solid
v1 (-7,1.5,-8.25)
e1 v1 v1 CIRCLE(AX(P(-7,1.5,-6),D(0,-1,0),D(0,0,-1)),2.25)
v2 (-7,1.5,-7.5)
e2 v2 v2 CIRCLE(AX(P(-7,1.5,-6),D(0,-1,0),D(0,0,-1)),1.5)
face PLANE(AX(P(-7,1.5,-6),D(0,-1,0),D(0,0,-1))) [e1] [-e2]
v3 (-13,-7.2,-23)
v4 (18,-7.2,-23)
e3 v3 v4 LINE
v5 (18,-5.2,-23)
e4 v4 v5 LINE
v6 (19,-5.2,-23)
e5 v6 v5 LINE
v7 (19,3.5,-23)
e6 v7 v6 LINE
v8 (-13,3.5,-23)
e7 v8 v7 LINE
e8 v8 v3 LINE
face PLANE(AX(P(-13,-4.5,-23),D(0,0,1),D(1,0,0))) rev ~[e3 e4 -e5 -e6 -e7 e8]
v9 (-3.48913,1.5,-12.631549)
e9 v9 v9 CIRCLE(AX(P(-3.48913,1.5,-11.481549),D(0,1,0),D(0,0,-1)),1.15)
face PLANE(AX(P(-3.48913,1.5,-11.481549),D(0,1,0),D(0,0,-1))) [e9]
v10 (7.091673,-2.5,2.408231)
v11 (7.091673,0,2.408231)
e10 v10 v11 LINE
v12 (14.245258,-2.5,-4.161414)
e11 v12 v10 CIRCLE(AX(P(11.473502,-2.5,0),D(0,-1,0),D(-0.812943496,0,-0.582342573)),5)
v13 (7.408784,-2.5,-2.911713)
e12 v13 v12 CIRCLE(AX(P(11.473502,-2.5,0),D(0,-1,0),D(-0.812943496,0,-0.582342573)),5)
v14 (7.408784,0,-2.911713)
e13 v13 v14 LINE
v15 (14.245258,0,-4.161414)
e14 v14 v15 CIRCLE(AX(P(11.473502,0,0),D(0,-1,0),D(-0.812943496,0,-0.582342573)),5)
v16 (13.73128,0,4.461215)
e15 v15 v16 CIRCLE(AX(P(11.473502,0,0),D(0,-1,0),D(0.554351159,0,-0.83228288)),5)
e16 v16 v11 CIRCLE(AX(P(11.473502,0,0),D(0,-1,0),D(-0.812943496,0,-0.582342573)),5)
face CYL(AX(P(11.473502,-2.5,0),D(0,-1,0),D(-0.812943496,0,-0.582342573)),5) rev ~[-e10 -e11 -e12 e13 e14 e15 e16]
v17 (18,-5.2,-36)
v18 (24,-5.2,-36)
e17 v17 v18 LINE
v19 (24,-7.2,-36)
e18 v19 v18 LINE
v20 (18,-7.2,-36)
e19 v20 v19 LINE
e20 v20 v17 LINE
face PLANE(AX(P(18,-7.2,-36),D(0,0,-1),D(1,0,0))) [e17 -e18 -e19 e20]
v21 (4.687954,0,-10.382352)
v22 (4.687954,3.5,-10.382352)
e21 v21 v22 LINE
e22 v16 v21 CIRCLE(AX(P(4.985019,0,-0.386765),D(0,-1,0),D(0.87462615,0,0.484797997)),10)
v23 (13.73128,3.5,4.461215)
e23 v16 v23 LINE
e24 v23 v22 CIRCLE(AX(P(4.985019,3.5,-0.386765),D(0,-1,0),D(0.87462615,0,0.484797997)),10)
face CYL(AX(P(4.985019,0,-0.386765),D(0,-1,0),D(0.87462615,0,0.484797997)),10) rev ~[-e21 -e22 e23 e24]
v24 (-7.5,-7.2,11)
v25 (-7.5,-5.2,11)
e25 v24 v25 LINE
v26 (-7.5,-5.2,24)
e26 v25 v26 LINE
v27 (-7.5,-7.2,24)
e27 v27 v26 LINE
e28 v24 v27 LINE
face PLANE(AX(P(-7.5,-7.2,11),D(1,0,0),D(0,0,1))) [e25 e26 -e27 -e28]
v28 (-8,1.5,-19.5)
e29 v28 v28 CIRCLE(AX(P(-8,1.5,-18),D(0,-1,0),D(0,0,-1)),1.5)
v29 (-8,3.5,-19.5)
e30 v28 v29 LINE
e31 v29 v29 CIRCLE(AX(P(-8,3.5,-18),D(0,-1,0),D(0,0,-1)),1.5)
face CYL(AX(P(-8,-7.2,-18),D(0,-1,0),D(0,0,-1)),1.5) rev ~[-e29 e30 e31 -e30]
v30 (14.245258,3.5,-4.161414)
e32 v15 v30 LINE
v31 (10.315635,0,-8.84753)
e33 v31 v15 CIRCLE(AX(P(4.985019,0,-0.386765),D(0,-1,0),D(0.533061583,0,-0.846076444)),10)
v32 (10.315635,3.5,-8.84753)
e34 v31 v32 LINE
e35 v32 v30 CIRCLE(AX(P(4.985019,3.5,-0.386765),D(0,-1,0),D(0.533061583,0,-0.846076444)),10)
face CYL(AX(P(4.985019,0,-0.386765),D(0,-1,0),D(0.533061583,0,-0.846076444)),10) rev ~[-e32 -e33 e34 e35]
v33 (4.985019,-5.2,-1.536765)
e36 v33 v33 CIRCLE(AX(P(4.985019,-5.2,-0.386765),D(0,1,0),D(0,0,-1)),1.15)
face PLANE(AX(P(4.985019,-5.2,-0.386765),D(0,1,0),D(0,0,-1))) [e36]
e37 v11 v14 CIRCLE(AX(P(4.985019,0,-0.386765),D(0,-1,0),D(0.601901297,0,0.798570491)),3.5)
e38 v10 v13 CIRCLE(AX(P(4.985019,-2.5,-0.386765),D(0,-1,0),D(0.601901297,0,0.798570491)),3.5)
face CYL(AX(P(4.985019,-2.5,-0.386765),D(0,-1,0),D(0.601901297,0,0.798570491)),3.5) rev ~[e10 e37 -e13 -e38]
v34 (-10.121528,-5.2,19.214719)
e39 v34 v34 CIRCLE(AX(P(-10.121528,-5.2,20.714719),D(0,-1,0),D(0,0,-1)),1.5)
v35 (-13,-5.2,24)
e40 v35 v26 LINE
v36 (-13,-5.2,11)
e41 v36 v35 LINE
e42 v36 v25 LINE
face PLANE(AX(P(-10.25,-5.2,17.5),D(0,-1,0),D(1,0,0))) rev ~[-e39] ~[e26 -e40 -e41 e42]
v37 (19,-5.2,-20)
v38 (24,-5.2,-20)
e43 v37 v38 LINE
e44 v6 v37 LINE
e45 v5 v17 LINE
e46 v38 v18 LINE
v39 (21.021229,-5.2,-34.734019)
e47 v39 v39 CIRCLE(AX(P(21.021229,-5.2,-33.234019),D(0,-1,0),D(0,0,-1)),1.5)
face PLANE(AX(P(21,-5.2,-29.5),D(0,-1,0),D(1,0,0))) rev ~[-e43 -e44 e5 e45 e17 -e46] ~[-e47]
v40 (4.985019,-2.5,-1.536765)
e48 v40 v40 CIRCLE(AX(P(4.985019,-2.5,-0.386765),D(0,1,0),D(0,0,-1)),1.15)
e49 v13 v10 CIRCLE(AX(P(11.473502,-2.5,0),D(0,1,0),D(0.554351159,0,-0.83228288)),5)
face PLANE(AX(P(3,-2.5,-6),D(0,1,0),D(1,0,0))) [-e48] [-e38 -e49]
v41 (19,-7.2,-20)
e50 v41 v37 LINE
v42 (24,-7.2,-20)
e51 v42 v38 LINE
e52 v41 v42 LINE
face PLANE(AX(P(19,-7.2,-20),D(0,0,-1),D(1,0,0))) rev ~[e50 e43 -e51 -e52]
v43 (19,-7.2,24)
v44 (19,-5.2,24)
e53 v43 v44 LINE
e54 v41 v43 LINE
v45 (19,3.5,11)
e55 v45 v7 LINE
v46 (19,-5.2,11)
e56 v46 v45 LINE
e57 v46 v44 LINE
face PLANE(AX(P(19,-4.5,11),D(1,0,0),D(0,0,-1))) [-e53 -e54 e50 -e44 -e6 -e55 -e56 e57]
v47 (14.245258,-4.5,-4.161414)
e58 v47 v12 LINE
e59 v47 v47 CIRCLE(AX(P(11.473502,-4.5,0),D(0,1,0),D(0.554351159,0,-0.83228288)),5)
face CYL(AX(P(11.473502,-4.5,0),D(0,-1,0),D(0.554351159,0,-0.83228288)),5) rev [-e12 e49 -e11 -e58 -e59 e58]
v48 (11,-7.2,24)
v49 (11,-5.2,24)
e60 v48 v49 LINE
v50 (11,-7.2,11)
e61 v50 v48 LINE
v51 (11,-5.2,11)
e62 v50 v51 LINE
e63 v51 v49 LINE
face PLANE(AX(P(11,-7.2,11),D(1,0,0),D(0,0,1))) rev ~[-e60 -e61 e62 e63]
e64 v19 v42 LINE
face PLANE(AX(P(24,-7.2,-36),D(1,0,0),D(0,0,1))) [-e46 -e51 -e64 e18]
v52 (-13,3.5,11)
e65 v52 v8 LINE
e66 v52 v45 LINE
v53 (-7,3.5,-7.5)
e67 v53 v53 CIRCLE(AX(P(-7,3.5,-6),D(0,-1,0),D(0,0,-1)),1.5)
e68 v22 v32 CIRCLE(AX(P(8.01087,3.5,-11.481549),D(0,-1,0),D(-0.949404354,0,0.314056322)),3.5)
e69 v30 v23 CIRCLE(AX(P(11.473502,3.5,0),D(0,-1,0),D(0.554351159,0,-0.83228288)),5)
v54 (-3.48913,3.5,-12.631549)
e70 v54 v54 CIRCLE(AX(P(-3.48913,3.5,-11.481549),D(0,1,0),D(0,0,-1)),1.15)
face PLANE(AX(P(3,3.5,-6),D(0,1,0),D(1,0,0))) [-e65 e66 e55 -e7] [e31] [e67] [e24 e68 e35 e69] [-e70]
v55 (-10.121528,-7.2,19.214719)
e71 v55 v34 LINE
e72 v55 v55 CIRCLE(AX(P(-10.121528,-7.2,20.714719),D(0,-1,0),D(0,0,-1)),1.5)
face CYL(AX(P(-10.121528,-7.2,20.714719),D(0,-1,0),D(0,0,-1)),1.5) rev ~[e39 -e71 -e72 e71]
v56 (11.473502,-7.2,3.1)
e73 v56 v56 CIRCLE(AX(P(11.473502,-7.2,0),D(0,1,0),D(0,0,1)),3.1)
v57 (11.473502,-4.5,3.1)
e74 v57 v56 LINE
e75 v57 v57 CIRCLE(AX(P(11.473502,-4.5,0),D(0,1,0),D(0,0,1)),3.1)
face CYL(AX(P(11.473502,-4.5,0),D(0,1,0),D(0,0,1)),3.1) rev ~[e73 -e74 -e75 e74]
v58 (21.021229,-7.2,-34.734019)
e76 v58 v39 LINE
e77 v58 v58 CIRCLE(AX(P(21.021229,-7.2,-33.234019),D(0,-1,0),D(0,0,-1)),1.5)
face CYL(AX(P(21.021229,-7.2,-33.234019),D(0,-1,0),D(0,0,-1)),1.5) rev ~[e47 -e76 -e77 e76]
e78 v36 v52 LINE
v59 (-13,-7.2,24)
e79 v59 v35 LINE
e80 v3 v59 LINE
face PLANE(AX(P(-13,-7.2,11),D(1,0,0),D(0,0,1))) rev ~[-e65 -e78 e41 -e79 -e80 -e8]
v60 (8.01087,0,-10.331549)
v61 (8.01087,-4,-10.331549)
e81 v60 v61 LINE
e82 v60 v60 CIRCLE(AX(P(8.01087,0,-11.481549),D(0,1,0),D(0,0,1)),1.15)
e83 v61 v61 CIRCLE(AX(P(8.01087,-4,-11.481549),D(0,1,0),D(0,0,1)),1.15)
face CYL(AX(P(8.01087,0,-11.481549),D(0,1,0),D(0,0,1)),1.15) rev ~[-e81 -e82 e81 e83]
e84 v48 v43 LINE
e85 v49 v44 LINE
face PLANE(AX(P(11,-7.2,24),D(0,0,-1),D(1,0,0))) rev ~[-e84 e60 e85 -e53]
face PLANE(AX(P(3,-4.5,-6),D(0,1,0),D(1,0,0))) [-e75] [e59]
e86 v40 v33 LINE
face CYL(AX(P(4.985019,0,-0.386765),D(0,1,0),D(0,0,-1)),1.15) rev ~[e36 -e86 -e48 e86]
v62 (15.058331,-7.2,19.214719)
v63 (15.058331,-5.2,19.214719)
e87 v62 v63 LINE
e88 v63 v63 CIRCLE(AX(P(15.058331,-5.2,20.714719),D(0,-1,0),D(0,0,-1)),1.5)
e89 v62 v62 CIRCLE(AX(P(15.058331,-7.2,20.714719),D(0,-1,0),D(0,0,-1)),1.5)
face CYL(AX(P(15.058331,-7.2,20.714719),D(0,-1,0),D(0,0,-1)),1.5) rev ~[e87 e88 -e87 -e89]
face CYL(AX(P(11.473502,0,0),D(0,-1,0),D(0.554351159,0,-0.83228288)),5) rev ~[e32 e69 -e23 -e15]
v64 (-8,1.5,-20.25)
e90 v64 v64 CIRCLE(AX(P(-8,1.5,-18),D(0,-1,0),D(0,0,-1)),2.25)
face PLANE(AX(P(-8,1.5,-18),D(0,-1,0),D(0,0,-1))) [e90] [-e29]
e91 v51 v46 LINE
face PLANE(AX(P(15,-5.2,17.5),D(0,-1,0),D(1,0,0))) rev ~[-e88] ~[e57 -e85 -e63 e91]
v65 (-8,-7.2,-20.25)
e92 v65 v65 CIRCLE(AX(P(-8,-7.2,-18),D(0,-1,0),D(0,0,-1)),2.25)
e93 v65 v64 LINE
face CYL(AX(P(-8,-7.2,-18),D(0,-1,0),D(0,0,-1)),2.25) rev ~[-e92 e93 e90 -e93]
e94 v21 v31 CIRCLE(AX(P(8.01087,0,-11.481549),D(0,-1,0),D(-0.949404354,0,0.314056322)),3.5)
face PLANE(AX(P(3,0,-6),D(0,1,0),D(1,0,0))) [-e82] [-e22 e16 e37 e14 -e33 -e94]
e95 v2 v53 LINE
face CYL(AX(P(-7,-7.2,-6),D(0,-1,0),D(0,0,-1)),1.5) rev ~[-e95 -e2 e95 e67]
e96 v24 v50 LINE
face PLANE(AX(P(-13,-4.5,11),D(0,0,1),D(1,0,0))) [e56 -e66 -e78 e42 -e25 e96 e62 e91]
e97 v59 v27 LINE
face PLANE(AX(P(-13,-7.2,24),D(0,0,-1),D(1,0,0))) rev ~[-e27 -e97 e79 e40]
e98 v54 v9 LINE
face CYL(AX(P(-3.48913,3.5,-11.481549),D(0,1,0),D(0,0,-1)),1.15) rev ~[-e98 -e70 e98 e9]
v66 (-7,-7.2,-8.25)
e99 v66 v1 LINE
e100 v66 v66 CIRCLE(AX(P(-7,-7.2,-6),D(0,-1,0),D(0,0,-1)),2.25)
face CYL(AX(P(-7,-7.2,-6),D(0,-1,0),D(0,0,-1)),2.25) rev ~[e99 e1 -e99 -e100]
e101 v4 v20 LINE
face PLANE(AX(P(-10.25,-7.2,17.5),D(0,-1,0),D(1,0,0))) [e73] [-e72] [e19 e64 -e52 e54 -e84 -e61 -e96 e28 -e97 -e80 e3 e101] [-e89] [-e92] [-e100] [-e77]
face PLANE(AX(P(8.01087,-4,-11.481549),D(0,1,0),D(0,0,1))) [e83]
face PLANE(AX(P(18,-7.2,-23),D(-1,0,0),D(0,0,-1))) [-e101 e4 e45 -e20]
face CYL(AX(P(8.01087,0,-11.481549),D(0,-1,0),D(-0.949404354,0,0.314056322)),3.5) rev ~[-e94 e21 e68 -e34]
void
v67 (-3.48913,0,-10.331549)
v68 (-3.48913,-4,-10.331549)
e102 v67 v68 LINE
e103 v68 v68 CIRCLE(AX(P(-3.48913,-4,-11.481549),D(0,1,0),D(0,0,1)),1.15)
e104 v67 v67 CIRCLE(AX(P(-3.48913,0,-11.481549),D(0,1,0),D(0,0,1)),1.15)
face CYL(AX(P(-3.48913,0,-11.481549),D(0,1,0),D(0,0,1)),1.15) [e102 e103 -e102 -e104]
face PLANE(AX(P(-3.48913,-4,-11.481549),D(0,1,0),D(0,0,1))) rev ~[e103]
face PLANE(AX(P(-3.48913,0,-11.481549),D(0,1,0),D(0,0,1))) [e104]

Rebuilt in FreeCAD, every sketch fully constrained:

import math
import FreeCAD as App
import Part
import Sketcher
from FreeCAD import Vector


def add_polygon(sketch, points):
    """Adds a closed chain of lines whose ends are joined by coincident constraints."""
    first, n = sketch.GeometryCount, len(points)
    for a, b in zip(points, points[1:] + points[:1]):
        sketch.addGeometry(Part.LineSegment(App.Vector(*a, 0), App.Vector(*b, 0)), False)
    for i in range(n):
        sketch.addConstraint(Sketcher.Constraint("Coincident", first + i, 2, first + (i + 1) % n, 1))

doc = App.newDocument("Part")
body = doc.addObject("PartDesign::Body", "Body")

# Sketch on XZ plane
sketch1 = doc.addObject("Sketcher::SketchObject", "Sketch")
body.addObject(sketch1)
sketch1.AttachmentSupport = (doc.XZ_Plane, [""])
sketch1.MapMode = "FlatFace"
add_polygon(sketch1, [(-13, -23), (-13, 11), (19, 11), (19, -23)])  # lines 0-3
sketch1.addGeometry(Part.ArcOfCircle(Part.Circle(Vector(11.5, 0, 0), Vector(0, 0, 1), 5), math.radians(-56), math.radians(63)), False)  # 4
sketch1.addGeometry(Part.ArcOfCircle(Part.Circle(Vector(5, -0.4, 0), Vector(0, 0, 1), 10), math.radians(29), math.radians(268)), False)  # 5
sketch1.addGeometry(Part.ArcOfCircle(Part.Circle(Vector(8, -11.5, 0), Vector(0, 0, 1), 3.5), math.radians(162), math.radians(409)), False)  # 6
sketch1.addGeometry(Part.ArcOfCircle(Part.Circle(Vector(5, -0.4, 0), Vector(0, 0, 1), 10), math.radians(-58), math.radians(-22)), False)  # 7
sketch1.addConstraint([
    Sketcher.Constraint("Coincident", 4, 2, 5, 1),
    Sketcher.Constraint("Coincident", 5, 2, 6, 1),
    Sketcher.Constraint("Coincident", 6, 2, 7, 1),
    Sketcher.Constraint("Coincident", 7, 2, 4, 1),
    Sketcher.Constraint("Vertical", 0),
    Sketcher.Constraint("Horizontal", 1),
    Sketcher.Constraint("Vertical", 2),
    Sketcher.Constraint("Horizontal", 3),
    Sketcher.Constraint("Coincident", 7, 3, 5, 3),
    Sketcher.Constraint("Equal", 5, 7),
    Sketcher.Constraint("PointOnObject", 4, 3, -1),
    Sketcher.Constraint("Radius", 4, 5.0),
    Sketcher.Constraint("Radius", 5, 10.0),
    Sketcher.Constraint("Radius", 6, 3.5),
    Sketcher.Constraint("DistanceX", 1, 1, 1, 2, 32.0),
    Sketcher.Constraint("DistanceY", 0, 1, 0, 2, 34.0),
    Sketcher.Constraint("DistanceX", 0, 2, -1, 1, 13.0),
    Sketcher.Constraint("DistanceY", -1, 1, 0, 2, 11.0),
    Sketcher.Constraint("DistanceX", -1, 1, 4, 3, 11.473502),
    Sketcher.Constraint("DistanceX", -1, 1, 5, 3, 4.985019),
    Sketcher.Constraint("DistanceX", -1, 1, 6, 3, 8.01087),
    Sketcher.Constraint("DistanceY", 6, 3, -1, 1, 11.481549),
    Sketcher.Constraint("DistanceX", -1, 1, 4, 2, 13.73128),
])
pad1 = doc.addObject("PartDesign::Pad", "Pad")
body.addObject(pad1)
pad1.Profile = sketch1
pad1.Length = 3.5
pad1.Reversed = True

# Sketch on XZ plane
sketch2 = doc.addObject("Sketcher::SketchObject", "Sketch001")
body.addObject(sketch2)
sketch2.AttachmentSupport = (doc.XZ_Plane, [""])
sketch2.MapMode = "FlatFace"
sketch2.AttachmentOffset = App.Placement(Vector(0, 0, 2.5), App.Rotation())
add_polygon(sketch2, [(-13, -23), (-13, 11), (19, 11), (19, -23)])  # lines 0-3
sketch2.addGeometry(Part.ArcOfCircle(Part.Circle(Vector(5, -0.4, 0), Vector(0, 0, 1), 3.5), math.radians(53), math.radians(314)), False)  # 4
sketch2.addGeometry(Part.ArcOfCircle(Part.Circle(Vector(11.5, 0, 0), Vector(0, 0, 1), 5), math.radians(-144), math.radians(151)), False)  # 5
sketch2.addConstraint([
    Sketcher.Constraint("Coincident", 4, 1, 5, 2),
    Sketcher.Constraint("Coincident", 5, 1, 4, 2),
    Sketcher.Constraint("Vertical", 0),
    Sketcher.Constraint("Horizontal", 1),
    Sketcher.Constraint("Vertical", 2),
    Sketcher.Constraint("Horizontal", 3),
    Sketcher.Constraint("PointOnObject", 5, 3, -1),
    Sketcher.Constraint("Radius", 5, 5.0),
    Sketcher.Constraint("Radius", 4, 3.5),
    Sketcher.Constraint("DistanceX", 1, 1, 1, 2, 32.0),
    Sketcher.Constraint("DistanceY", 0, 1, 0, 2, 34.0),
    Sketcher.Constraint("DistanceX", 0, 2, -1, 1, 13.0),
    Sketcher.Constraint("DistanceY", -1, 1, 0, 2, 11.0),
    Sketcher.Constraint("DistanceX", -1, 1, 5, 3, 11.473502),
    Sketcher.Constraint("DistanceX", -1, 1, 4, 3, 4.985019),
    Sketcher.Constraint("DistanceY", -1, 1, 4, 1, 2.408231),
])
pad2 = doc.addObject("PartDesign::Pad", "Pad001")
body.addObject(pad2)
pad2.Profile = sketch2
pad2.Length = 2.5
pad2.Reversed = True

# Sketch on XZ plane
sketch3 = doc.addObject("Sketcher::SketchObject", "Sketch002")
body.addObject(sketch3)
sketch3.AttachmentSupport = (doc.XZ_Plane, [""])
sketch3.MapMode = "FlatFace"
sketch3.AttachmentOffset = App.Placement(Vector(0, 0, 4.5), App.Rotation())
add_polygon(sketch3, [(-13, -23), (-13, 11), (19, 11), (19, -23)])  # lines 0-3
sketch3.addGeometry(Part.Circle(Vector(11, 0, 0), Vector(0, 0, 1), 5), False)  # 4
sketch3.addConstraint([
    Sketcher.Constraint("Vertical", 0),
    Sketcher.Constraint("Horizontal", 1),
    Sketcher.Constraint("Vertical", 2),
    Sketcher.Constraint("Horizontal", 3),
    Sketcher.Constraint("PointOnObject", 4, 3, -1),
    Sketcher.Constraint("Diameter", 4, 10.0),
    Sketcher.Constraint("DistanceX", 1, 1, 1, 2, 32.0),
    Sketcher.Constraint("DistanceY", 0, 1, 0, 2, 34.0),
    Sketcher.Constraint("DistanceX", 0, 2, -1, 1, 13.0),
    Sketcher.Constraint("DistanceY", -1, 1, 0, 2, 11.0),
    Sketcher.Constraint("DistanceX", -1, 1, 4, 3, 11.473502),
])
pad3 = doc.addObject("PartDesign::Pad", "Pad002")
body.addObject(pad3)
pad3.Profile = sketch3
pad3.Length = 2
pad3.Reversed = True

# Sketch on XZ plane
sketch4 = doc.addObject("Sketcher::SketchObject", "Sketch003")
body.addObject(sketch4)
sketch4.AttachmentSupport = (doc.XZ_Plane, [""])
sketch4.MapMode = "FlatFace"
sketch4.AttachmentOffset = App.Placement(Vector(0, 0, 4.5), App.Rotation())
add_polygon(sketch4, [(-13, -23), (-13, 11), (19, 11), (19, -23)])  # lines 0-3
sketch4.addGeometry(Part.Circle(Vector(11.5, 0, 0), Vector(0, 0, 1), 3.1), False)  # 4
sketch4.addConstraint([
    Sketcher.Constraint("Vertical", 0),
    Sketcher.Constraint("Horizontal", 1),
    Sketcher.Constraint("Vertical", 2),
    Sketcher.Constraint("Horizontal", 3),
    Sketcher.Constraint("PointOnObject", 4, 3, -1),
    Sketcher.Constraint("Diameter", 4, 6.2),
    Sketcher.Constraint("DistanceX", 1, 1, 1, 2, 32.0),
    Sketcher.Constraint("DistanceY", 0, 1, 0, 2, 34.0),
    Sketcher.Constraint("DistanceX", 0, 2, -1, 1, 13.0),
    Sketcher.Constraint("DistanceY", -1, 1, 0, 2, 11.0),
    Sketcher.Constraint("DistanceX", -1, 1, 4, 3, 11.473502),
])
pad4 = doc.addObject("PartDesign::Pad", "Pad003")
body.addObject(pad4)
pad4.Profile = sketch4
pad4.Length = 2.7

# Sketch on XZ plane
sketch5 = doc.addObject("Sketcher::SketchObject", "Sketch004")
body.addObject(sketch5)
sketch5.AttachmentSupport = (doc.XZ_Plane, [""])
sketch5.MapMode = "FlatFace"
sketch5.AttachmentOffset = App.Placement(Vector(0, 0, 7.2), App.Rotation())
sketch5.addGeometry([
    Part.Circle(Vector(-8, -18, 0), Vector(0, 0, 1), 1.5),
    Part.Circle(Vector(-7, -6, 0), Vector(0, 0, 1), 1.5),
], False)
sketch5.addConstraint([
    Sketcher.Constraint("Equal", 0, 1),
    Sketcher.Constraint("Diameter", 0, 3.0),
    Sketcher.Constraint("DistanceX", 0, 3, -1, 1, 8.0),
    Sketcher.Constraint("DistanceY", 0, 3, -1, 1, 18.0),
    Sketcher.Constraint("DistanceX", 1, 3, -1, 1, 7.0),
    Sketcher.Constraint("DistanceY", 1, 3, -1, 1, 6.0),
])
pocket1 = doc.addObject("PartDesign::Pocket", "Pocket")
body.addObject(pocket1)
pocket1.Profile = sketch5
pocket1.Type = "ThroughAll"

# Sketch on XZ plane
sketch6 = doc.addObject("Sketcher::SketchObject", "Sketch005")
body.addObject(sketch6)
sketch6.AttachmentSupport = (doc.XZ_Plane, [""])
sketch6.MapMode = "FlatFace"
sketch6.AttachmentOffset = App.Placement(Vector(0, 0, 7.2), App.Rotation())
sketch6.addGeometry([
    Part.Circle(Vector(-8, -18, 0), Vector(0, 0, 1), 2.2),
    Part.Circle(Vector(-7, -6, 0), Vector(0, 0, 1), 2.2),
], False)
sketch6.addConstraint([
    Sketcher.Constraint("Equal", 0, 1),
    Sketcher.Constraint("Diameter", 0, 4.5),
    Sketcher.Constraint("DistanceX", 0, 3, -1, 1, 8.0),
    Sketcher.Constraint("DistanceY", 0, 3, -1, 1, 18.0),
    Sketcher.Constraint("DistanceX", 1, 3, -1, 1, 7.0),
    Sketcher.Constraint("DistanceY", 1, 3, -1, 1, 6.0),
])
pocket2 = doc.addObject("PartDesign::Pocket", "Pocket001")
body.addObject(pocket2)
pocket2.Profile = sketch6
pocket2.Length = 8.7

# Sketch on XZ plane
sketch7 = doc.addObject("Sketcher::SketchObject", "Sketch006")
body.addObject(sketch7)
sketch7.AttachmentSupport = (doc.XZ_Plane, [""])
sketch7.MapMode = "FlatFace"
sketch7.addGeometry([
    Part.Circle(Vector(-3.5, -11.5, 0), Vector(0, 0, 1), 1.1),
    Part.Circle(Vector(8, -11.5, 0), Vector(0, 0, 1), 1.1),
], False)
sketch7.addConstraint([
    Sketcher.Constraint("Equal", 0, 1),
    Sketcher.Constraint("Horizontal", 0, 3, 1, 3),
    Sketcher.Constraint("Diameter", 0, 2.3),
    Sketcher.Constraint("DistanceX", 0, 3, 1, 3, 11.5),
    Sketcher.Constraint("DistanceX", 0, 3, -1, 1, 3.48913),
    Sketcher.Constraint("DistanceY", 0, 3, -1, 1, 11.481549),
])
pocket3 = doc.addObject("PartDesign::Pocket", "Pocket002")
body.addObject(pocket3)
pocket3.Profile = sketch7
pocket3.Length = 4
pocket3.Reversed = True

# Sketch on XZ plane
sketch8 = doc.addObject("Sketcher::SketchObject", "Sketch007")
body.addObject(sketch8)
sketch8.AttachmentSupport = (doc.XZ_Plane, [""])
sketch8.MapMode = "FlatFace"
sketch8.AttachmentOffset = App.Placement(Vector(0, 0, 7.2), App.Rotation())
add_polygon(sketch8, [(-13, 24), (-13, 11), (-7.5, 11), (-7.5, 24)])  # lines 0-3
sketch8.addGeometry(Part.Circle(Vector(-10.1, 20.7, 0), Vector(0, 0, 1), 1.5), False)  # 4
add_polygon(sketch8, [(11, 24), (11, 11), (19, 11), (19, 24)])  # lines 5-8
sketch8.addGeometry(Part.Circle(Vector(15.1, 20.7, 0), Vector(0, 0, 1), 1.5), False)  # 9
add_polygon(sketch8, [(18, -23), (18, -36), (24, -36), (24, -20), (19, -20), (19, -23)])  # lines 10-15
sketch8.addGeometry(Part.Circle(Vector(21, -33.2, 0), Vector(0, 0, 1), 1.5), False)  # 16
sketch8.addConstraint([
    Sketcher.Constraint("Vertical", 0),
    Sketcher.Constraint("Horizontal", 1),
    Sketcher.Constraint("Vertical", 2),
    Sketcher.Constraint("Horizontal", 3),
    Sketcher.Constraint("Vertical", 5),
    Sketcher.Constraint("Horizontal", 6),
    Sketcher.Constraint("Vertical", 7),
    Sketcher.Constraint("Horizontal", 8),
    Sketcher.Constraint("Vertical", 10),
    Sketcher.Constraint("Horizontal", 11),
    Sketcher.Constraint("Vertical", 12),
    Sketcher.Constraint("Horizontal", 13),
    Sketcher.Constraint("Vertical", 14),
    Sketcher.Constraint("Horizontal", 15),
    Sketcher.Constraint("Equal", 4, 9),
    Sketcher.Constraint("Equal", 9, 16),
    Sketcher.Constraint("Horizontal", 4, 3, 9, 3),
    Sketcher.Constraint("Horizontal", 1, 2, 5, 2),
    Sketcher.Constraint("Horizontal", 3, 2, 7, 2),
    Sketcher.Constraint("Vertical", 7, 2, 13, 2),
    Sketcher.Constraint("Equal", 7, 10),
    Sketcher.Constraint("Diameter", 4, 3.0),
    Sketcher.Constraint("DistanceX", 6, 1, 6, 2, 8.0),
    Sketcher.Constraint("DistanceX", 11, 1, 11, 2, 6.0),
    Sketcher.Constraint("DistanceX", 13, 2, 13, 1, 5.0),
    Sketcher.Constraint("DistanceY", 0, 2, 0, 1, 13.0),
    Sketcher.Constraint("DistanceY", 12, 1, 12, 2, 16.0),
    Sketcher.Constraint("DistanceX", 1, 1, 1, 2, 5.5),
    Sketcher.Constraint("DistanceX", 0, 2, -1, 1, 13.0),
    Sketcher.Constraint("DistanceY", -1, 1, 0, 2, 11.0),
    Sketcher.Constraint("DistanceX", -1, 1, 5, 2, 11.0),
    Sketcher.Constraint("DistanceY", 10, 2, -1, 1, 36.0),
    Sketcher.Constraint("DistanceX", 9, 3, 16, 3, 5.962898),
    Sketcher.Constraint("DistanceX", 4, 3, -1, 1, 10.121528),
    Sketcher.Constraint("DistanceY", -1, 1, 4, 3, 20.714719),
    Sketcher.Constraint("DistanceX", -1, 1, 9, 3, 15.058331),
    Sketcher.Constraint("DistanceY", 16, 3, -1, 1, 33.234019),
])
pad5 = doc.addObject("PartDesign::Pad", "Pad004")
body.addObject(pad5)
pad5.Profile = sketch8
pad5.Length = 2
pad5.Reversed = True

# Sketch on XZ plane
sketch9 = doc.addObject("Sketcher::SketchObject", "Sketch008")
body.addObject(sketch9)
sketch9.AttachmentSupport = (doc.XZ_Plane, [""])
sketch9.MapMode = "FlatFace"
sketch9.addGeometry(Part.Circle(Vector(5, -0.4, 0), Vector(0, 0, 1), 1.1), False)
sketch9.addConstraint([
    Sketcher.Constraint("Diameter", 0, 2.3),
    Sketcher.Constraint("DistanceX", -1, 1, 0, 3, 4.985019),
    Sketcher.Constraint("DistanceY", 0, 3, -1, 1, 0.386765),
])
pocket4 = doc.addObject("PartDesign::Pocket", "Pocket003")
body.addObject(pocket4)
pocket4.Profile = sketch9
pocket4.Length = 5.2
pocket4.Reversed = True

# Sketch on XZ plane
sketch10 = doc.addObject("Sketcher::SketchObject", "Sketch009")
body.addObject(sketch10)
sketch10.AttachmentSupport = (doc.XZ_Plane, [""])
sketch10.MapMode = "FlatFace"
sketch10.AttachmentOffset = App.Placement(Vector(0, 0, -3.5), App.Rotation())
sketch10.addGeometry(Part.Circle(Vector(-3.5, -11.5, 0), Vector(0, 0, 1), 1.1), False)
sketch10.addConstraint([
    Sketcher.Constraint("Diameter", 0, 2.3),
    Sketcher.Constraint("DistanceX", 0, 3, -1, 1, 3.48913),
    Sketcher.Constraint("DistanceY", 0, 3, -1, 1, 11.481549),
])
pocket5 = doc.addObject("PartDesign::Pocket", "Pocket004")
body.addObject(pocket5)
pocket5.Profile = sketch10
pocket5.Length = 2
pocket5.Reversed = True

doc.recompute()
